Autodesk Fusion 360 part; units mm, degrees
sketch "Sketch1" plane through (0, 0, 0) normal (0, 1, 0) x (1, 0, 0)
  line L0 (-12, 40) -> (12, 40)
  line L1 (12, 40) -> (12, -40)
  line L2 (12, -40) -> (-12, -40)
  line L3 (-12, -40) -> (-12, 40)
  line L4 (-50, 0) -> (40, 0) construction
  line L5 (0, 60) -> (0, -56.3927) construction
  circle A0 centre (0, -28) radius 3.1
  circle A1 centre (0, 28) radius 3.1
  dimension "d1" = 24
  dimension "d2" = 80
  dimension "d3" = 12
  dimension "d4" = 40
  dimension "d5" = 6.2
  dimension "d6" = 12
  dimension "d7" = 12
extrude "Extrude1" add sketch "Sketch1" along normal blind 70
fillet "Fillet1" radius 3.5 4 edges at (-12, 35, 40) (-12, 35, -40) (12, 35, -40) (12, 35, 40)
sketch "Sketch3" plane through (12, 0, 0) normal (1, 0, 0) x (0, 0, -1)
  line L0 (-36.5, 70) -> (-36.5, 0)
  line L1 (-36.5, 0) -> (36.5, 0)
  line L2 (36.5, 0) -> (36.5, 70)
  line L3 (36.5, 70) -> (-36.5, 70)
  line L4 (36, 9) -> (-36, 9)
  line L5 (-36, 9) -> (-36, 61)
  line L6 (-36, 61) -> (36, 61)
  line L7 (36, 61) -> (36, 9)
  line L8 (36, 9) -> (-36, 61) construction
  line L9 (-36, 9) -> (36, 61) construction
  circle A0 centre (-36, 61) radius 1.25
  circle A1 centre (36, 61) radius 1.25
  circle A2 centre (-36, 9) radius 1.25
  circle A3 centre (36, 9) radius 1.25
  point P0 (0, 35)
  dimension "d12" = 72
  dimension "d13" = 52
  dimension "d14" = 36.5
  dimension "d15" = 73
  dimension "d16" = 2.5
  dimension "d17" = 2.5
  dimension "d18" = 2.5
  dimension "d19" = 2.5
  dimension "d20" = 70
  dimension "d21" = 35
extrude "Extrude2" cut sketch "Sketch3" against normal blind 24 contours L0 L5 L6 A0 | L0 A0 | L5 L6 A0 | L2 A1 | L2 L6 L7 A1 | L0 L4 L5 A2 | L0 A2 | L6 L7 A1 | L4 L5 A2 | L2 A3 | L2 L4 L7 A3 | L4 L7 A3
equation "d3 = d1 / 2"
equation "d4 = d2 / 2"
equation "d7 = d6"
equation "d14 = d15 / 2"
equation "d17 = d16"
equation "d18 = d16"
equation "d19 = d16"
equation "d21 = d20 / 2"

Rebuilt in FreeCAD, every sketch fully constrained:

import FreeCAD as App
import Part
import Sketcher
from FreeCAD import Vector


def edges_at(feature, points):
    """Names of the edges that pass closest to the given points."""
    edges = feature.Shape.Edges
    near = lambda p: min(range(len(edges)), key=lambda i: edges[i].distToShape(Part.Vertex(*p))[0])
    return sorted({f"Edge{near(p) + 1}" for p in points})

doc = App.newDocument("Part")
body = doc.addObject("PartDesign::Body", "Body")

sketch1 = body.newObject("Sketcher::SketchObject", "Sketch")
sketch1.AttachmentSupport = (doc.getObject("XZ_Plane"), [""])
sketch1.MapMode = "FlatFace"
sketch1.addGeometry(Part.LineSegment(Vector(12, -40, 0), Vector(-12, -40, 0)), False)
sketch1.addGeometry(Part.LineSegment(Vector(-12, -40, 0), Vector(-12, 40, 0)), False)
sketch1.addGeometry(Part.LineSegment(Vector(-12, 40, 0), Vector(12, 40, 0)), False)
sketch1.addGeometry(Part.LineSegment(Vector(12, 40, 0), Vector(12, -40, 0)), False)
sketch1.addGeometry(Part.Circle(Vector(0, 28, 0), Vector(0, 0, 1), 3.1), False)
sketch1.addGeometry(Part.Circle(Vector(0, -28, 0), Vector(0, 0, 1), 3.1), False)
sketch1.addConstraint(Sketcher.Constraint("Coincident", 0, 2, 1, 1))
sketch1.addConstraint(Sketcher.Constraint("Coincident", 1, 2, 2, 1))
sketch1.addConstraint(Sketcher.Constraint("Coincident", 2, 2, 3, 1))
sketch1.addConstraint(Sketcher.Constraint("Coincident", 3, 2, 0, 1))
sketch1.addConstraint(Sketcher.Constraint("Horizontal", 0))
sketch1.addConstraint(Sketcher.Constraint("Vertical", 1))
sketch1.addConstraint(Sketcher.Constraint("Horizontal", 2))
sketch1.addConstraint(Sketcher.Constraint("Vertical", 3))
sketch1.addConstraint(Sketcher.Constraint("Equal", 4, 5))
sketch1.addConstraint(Sketcher.Constraint("Symmetric", 4, 3, 5, 3, -1, 1))
sketch1.addConstraint(Sketcher.Constraint("Symmetric", 0, 2, 2, 2, -1, 1))
sketch1.addConstraint(Sketcher.Constraint("PointOnObject", 4, 3, -2))
sketch1.addConstraint(Sketcher.Constraint("Diameter", 4, 6.2))
sketch1.addConstraint(Sketcher.Constraint("DistanceX", 0, 2, 0, 1, 24.0))
sketch1.addConstraint(Sketcher.Constraint("DistanceY", 1, 1, 1, 2, 80.0))
sketch1.addConstraint(Sketcher.Constraint("DistanceY", 0, 2, 5, 3, 12.0))
pad1 = body.newObject("PartDesign::Pad", "Pad")
pad1.Profile = sketch1
pad1.Length = 70
pad1.Reversed = True
doc.recompute()

fillet = body.newObject("PartDesign::Fillet", "Fillet")
fillet.Base = (pad1, edges_at(pad1, [
    (-12, 35, 40),
    (-12, 35, -40),
    (12, 35, -40),
    (12, 35, 40),
]))
fillet.Radius = 3.5

sketch2 = body.newObject("Sketcher::SketchObject", "Sketch001")
sketch2.AttachmentSupport = (doc.getObject("YZ_Plane"), [""])
sketch2.MapMode = "FlatFace"
sketch2.AttachmentOffset = App.Placement(Vector(0, 0, 12), App.Rotation())
sketch2.addGeometry(Part.Circle(Vector(61, 36, 0), Vector(0, 0, 1), 1.2), False)
sketch2.addGeometry(Part.Circle(Vector(61, -36, 0), Vector(0, 0, 1), 1.2), False)
sketch2.addGeometry(Part.Circle(Vector(9, 36, 0), Vector(0, 0, 1), 1.2), False)
sketch2.addGeometry(Part.Circle(Vector(9, -36, 0), Vector(0, 0, 1), 1.2), False)
sketch2.addConstraint(Sketcher.Constraint("Equal", 0, 1))
sketch2.addConstraint(Sketcher.Constraint("Equal", 1, 2))
sketch2.addConstraint(Sketcher.Constraint("Equal", 2, 3))
sketch2.addConstraint(Sketcher.Constraint("Symmetric", 0, 3, 1, 3, -1))
sketch2.addConstraint(Sketcher.Constraint("Symmetric", 2, 3, 3, 3, -1))
sketch2.addConstraint(Sketcher.Constraint("Horizontal", 0, 3, 2, 3))
sketch2.addConstraint(Sketcher.Constraint("Diameter", 0, 2.5))
sketch2.addConstraint(Sketcher.Constraint("DistanceY", 1, 3, 0, 3, 72.0))
sketch2.addConstraint(Sketcher.Constraint("DistanceX", 2, 3, 0, 3, 52.0))
sketch2.addConstraint(Sketcher.Constraint("DistanceX", -1, 1, 0, 3, 61.0))
pocket1 = body.newObject("PartDesign::Pocket", "Pocket")
pocket1.Profile = sketch2
pocket1.Length = 24

doc.recompute()
